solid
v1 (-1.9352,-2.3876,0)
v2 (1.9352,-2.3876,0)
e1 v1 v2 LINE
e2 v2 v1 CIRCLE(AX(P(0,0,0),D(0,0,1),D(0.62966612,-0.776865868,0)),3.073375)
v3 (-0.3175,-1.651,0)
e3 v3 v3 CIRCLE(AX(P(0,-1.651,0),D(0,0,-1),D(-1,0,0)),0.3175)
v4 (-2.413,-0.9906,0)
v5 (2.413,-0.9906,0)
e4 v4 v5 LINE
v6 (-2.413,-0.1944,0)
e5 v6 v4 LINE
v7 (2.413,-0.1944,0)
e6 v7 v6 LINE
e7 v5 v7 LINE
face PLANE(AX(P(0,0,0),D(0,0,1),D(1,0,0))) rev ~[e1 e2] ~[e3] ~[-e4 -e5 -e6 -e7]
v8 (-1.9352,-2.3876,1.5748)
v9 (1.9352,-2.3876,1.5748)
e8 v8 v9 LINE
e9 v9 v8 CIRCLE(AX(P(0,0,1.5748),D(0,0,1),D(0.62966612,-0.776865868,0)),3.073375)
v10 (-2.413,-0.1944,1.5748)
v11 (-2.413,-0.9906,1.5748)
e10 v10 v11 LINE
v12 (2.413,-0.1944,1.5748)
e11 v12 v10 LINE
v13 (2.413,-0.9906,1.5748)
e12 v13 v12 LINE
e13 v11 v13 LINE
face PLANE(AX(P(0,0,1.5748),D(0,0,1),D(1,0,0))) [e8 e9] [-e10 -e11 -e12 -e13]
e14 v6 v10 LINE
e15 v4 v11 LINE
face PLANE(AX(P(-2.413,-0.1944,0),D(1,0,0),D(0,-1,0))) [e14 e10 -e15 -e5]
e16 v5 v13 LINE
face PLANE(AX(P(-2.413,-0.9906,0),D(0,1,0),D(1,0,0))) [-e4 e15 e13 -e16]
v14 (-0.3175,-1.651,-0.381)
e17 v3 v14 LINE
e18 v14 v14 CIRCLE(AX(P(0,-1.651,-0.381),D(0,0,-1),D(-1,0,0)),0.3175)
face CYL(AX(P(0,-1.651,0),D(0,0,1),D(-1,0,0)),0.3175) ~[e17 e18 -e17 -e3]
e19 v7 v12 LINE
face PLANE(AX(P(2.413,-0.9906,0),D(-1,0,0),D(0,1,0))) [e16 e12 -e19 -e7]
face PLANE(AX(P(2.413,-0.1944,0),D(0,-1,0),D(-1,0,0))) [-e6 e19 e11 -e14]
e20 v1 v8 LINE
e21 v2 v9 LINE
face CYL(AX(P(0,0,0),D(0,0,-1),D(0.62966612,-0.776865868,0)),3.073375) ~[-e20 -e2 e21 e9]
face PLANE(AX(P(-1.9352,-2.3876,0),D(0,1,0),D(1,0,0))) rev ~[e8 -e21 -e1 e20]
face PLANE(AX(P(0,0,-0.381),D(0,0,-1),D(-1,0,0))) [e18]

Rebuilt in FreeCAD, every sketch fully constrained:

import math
import FreeCAD as App
import Part
import Sketcher

V = App.Vector
Q = App.Units.Quantity

doc = App.newDocument("Part")
body = doc.addObject("PartDesign::Body", "Body")

sketch1 = body.newObject("Sketcher::SketchObject", "Sketch")
sketch1.AttachmentSupport = (doc.getObject("XY_Plane"), [""])
sketch1.MapMode = "FlatFace"
sketch1.addGeometry([
    Part.LineSegment(V(-1.9, -2.4, 0), V(1.9, -2.4, 0)),
    Part.ArcOfCircle(Part.Circle(V(0, 0, 0), V(0, 0, 1), 3.1), math.radians(-51), math.radians(231)),
    Part.LineSegment(V(2.4, -1, 0), V(-2.4, -1, 0)),
    Part.LineSegment(V(-2.4, -1, 0), V(-2.4, -0.2, 0)),
    Part.LineSegment(V(-2.4, -0.2, 0), V(2.4, -0.2, 0)),
    Part.LineSegment(V(2.4, -0.2, 0), V(2.4, -1, 0)),
], False)
sketch1.addConstraint([
    Sketcher.Constraint("Coincident", 0, 1, 1, 2),
    Sketcher.Constraint("Coincident", 1, 1, 0, 2),
    Sketcher.Constraint("Coincident", 2, 2, 3, 1),
    Sketcher.Constraint("Coincident", 3, 2, 4, 1),
    Sketcher.Constraint("Coincident", 4, 2, 5, 1),
    Sketcher.Constraint("Coincident", 5, 2, 2, 1),
    Sketcher.Constraint("Horizontal", 0),
    Sketcher.Constraint("Horizontal", 2),
    Sketcher.Constraint("Vertical", 3),
    Sketcher.Constraint("Horizontal", 4),
    Sketcher.Constraint("Vertical", 5),
    Sketcher.Constraint("Coincident", 1, 3, -1, 1),
    Sketcher.Constraint("Radius", 1, Q("0.121 in")),
    Sketcher.Constraint("DistanceX", 2, 2, 2, 1, Q("0.19 in")),
    Sketcher.Constraint("DistanceY", 0, 1, -1, 1, Q("0.094 in")),
    Sketcher.Constraint("DistanceX", 2, 2, -1, 1, Q("0.095 in")),
    Sketcher.Constraint("DistanceY", 0, 1, 2, 2, Q("0.055 in")),
    Sketcher.Constraint("DistanceY", 3, 1, 3, 2, Q("0.7962 mm")),
])
pad1 = body.newObject("PartDesign::Pad", "Pad")
pad1.Profile = sketch1
pad1.Length = Q("0.062 in")

sketch2 = body.newObject("Sketcher::SketchObject", "Sketch001")
sketch2.AttachmentSupport = (doc.getObject("XY_Plane"), [""])
sketch2.MapMode = "FlatFace"
sketch2.addGeometry(Part.Circle(V(0, -1.65, 0), V(0, 0, 1), 0.32), False)
sketch2.addConstraint([
    Sketcher.Constraint("PointOnObject", 0, 3, -2),
    Sketcher.Constraint("Diameter", 0, Q("0.025 in")),
    Sketcher.Constraint("DistanceY", 0, 3, -1, 1, Q("0.065 in")),
])
pad2 = body.newObject("PartDesign::Pad", "Pad001")
pad2.Profile = sketch2
pad2.Length = Q("0.015 in")
pad2.Reversed = True

doc.recompute()
